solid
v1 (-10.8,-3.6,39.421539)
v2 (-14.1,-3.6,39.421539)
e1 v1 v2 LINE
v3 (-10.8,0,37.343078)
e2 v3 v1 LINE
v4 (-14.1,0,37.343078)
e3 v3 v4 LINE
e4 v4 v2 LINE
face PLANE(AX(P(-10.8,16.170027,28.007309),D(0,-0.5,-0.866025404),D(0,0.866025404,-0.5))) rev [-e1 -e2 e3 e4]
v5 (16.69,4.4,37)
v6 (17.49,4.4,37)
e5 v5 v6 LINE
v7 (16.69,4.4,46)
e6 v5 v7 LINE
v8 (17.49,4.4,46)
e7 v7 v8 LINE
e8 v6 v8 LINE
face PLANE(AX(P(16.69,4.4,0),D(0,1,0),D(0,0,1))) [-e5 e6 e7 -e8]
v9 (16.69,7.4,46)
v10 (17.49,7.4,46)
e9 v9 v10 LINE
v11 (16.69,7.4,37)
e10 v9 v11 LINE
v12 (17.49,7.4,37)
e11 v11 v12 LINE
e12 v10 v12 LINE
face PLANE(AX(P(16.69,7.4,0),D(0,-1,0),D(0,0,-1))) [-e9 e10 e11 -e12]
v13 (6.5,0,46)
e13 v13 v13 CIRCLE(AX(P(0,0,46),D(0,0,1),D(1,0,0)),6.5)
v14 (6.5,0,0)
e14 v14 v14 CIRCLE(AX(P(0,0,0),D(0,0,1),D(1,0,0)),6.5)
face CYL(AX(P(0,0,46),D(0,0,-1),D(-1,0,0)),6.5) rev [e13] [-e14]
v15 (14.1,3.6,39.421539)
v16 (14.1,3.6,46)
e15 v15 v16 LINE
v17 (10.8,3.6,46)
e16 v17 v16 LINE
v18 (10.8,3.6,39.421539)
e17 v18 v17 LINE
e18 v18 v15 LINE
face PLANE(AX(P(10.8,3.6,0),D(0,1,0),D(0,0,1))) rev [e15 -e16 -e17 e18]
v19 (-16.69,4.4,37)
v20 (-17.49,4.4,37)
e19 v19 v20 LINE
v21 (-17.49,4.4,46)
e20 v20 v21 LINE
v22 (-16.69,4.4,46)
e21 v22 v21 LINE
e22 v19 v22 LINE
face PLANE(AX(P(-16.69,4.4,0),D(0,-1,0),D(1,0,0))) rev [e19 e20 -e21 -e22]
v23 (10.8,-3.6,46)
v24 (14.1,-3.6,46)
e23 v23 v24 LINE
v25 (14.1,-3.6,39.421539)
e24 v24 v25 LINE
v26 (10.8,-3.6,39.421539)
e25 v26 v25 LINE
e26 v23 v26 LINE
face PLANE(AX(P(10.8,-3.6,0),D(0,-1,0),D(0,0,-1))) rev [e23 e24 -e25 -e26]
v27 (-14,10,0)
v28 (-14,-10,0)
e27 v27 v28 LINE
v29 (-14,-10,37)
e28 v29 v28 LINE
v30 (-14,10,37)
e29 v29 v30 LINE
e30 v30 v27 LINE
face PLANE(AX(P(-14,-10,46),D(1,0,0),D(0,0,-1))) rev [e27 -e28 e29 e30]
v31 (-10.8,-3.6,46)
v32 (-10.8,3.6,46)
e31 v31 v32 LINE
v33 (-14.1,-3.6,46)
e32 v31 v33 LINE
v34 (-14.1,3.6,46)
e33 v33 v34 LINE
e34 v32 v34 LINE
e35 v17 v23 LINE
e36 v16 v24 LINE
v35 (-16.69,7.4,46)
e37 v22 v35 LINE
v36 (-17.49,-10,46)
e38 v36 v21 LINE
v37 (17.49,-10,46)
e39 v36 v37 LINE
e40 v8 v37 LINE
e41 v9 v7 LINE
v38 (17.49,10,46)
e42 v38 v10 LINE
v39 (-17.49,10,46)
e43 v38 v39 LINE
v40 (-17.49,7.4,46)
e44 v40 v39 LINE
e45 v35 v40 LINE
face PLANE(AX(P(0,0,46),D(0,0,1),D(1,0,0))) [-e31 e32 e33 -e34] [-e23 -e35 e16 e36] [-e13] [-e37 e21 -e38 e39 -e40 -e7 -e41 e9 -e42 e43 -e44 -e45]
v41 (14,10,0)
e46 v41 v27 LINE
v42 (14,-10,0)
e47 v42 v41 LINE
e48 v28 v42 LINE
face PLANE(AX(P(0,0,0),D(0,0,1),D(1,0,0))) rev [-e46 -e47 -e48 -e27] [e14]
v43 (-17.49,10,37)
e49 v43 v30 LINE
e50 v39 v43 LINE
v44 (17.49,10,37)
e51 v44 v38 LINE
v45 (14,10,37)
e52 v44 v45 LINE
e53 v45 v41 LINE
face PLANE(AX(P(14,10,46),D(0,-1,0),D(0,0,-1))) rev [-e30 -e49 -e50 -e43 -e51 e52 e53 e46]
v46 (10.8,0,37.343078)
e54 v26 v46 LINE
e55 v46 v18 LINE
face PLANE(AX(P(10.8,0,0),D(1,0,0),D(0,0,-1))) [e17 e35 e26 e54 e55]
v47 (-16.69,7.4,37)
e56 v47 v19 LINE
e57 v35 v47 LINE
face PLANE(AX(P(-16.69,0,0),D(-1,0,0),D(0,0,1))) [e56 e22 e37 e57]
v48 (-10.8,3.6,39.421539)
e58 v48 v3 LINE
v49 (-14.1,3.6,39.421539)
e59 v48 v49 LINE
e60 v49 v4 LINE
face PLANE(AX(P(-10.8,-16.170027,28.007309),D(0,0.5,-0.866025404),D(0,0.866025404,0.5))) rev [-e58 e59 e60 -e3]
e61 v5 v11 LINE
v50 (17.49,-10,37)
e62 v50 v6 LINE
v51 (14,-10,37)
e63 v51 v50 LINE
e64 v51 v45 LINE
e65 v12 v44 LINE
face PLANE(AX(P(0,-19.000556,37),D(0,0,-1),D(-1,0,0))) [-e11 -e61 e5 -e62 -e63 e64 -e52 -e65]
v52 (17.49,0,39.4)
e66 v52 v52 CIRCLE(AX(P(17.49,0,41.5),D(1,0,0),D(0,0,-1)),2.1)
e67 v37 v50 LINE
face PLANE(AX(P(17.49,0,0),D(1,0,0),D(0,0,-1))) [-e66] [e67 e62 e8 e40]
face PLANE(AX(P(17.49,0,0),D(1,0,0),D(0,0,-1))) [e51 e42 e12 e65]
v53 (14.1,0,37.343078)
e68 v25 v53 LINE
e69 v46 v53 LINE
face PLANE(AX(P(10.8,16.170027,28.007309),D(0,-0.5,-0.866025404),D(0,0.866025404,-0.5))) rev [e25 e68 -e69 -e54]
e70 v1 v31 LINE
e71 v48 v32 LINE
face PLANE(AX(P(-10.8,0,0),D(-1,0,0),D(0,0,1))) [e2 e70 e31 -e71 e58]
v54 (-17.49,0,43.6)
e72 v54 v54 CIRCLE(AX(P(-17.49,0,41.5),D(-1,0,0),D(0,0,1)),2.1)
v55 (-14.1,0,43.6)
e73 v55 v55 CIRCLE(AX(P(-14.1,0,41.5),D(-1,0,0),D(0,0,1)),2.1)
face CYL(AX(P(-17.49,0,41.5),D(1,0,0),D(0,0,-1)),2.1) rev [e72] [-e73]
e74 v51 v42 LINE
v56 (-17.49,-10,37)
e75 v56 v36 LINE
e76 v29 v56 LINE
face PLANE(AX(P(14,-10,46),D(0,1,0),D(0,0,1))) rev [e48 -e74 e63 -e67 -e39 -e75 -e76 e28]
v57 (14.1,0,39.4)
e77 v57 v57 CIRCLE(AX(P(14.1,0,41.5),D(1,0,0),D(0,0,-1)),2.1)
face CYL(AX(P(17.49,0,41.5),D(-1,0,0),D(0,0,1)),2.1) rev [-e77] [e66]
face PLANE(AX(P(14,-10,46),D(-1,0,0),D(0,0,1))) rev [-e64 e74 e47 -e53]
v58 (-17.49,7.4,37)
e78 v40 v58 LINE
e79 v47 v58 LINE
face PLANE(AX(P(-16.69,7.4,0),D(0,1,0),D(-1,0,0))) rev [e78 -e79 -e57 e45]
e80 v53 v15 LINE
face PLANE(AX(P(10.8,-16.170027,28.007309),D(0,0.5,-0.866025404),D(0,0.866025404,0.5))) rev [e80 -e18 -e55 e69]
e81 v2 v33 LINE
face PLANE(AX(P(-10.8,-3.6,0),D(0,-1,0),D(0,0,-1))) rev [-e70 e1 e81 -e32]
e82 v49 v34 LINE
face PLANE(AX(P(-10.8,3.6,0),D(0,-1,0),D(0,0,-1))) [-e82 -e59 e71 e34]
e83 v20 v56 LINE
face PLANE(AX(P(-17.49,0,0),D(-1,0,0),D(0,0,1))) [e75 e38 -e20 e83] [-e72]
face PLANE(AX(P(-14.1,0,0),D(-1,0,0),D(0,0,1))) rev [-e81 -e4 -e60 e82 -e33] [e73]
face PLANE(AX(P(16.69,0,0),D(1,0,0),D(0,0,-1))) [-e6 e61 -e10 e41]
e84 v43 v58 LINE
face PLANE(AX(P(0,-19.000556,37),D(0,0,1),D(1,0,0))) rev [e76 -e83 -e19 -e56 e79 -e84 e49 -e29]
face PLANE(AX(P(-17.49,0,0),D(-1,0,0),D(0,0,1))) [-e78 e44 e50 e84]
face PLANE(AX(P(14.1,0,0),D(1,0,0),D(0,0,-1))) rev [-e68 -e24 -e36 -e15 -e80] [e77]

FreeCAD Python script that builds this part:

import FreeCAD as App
import Part
import Sketcher

V = App.Vector
Q = App.Units.Quantity

doc = App.newDocument("Part")
body = doc.addObject("PartDesign::Body", "Body")

# Sketch on XY plane
sketch1 = body.newObject("Sketcher::SketchObject", "Sketch")
sketch1.AttachmentSupport = (doc.getObject("XY_Plane"), [""])
sketch1.MapMode = "FlatFace"
sketch1.addGeometry([
    Part.LineSegment(V(-14, 10, 0), V(-14, -10, 0)),  # 0
    Part.LineSegment(V(-14, -10, 0), V(14, -10, 0)),  # 1
    Part.LineSegment(V(14, -10, 0), V(14, 10, 0)),  # 2
    Part.LineSegment(V(14, 10, 0), V(-14, 10, 0)),  # 3
    Part.Circle(V(0, 0, 0), V(0, 0, 1), 6),  # 4
], False)
sketch1.addConstraint([
    Sketcher.Constraint("Coincident", 0, 2, 1, 1),
    Sketcher.Constraint("Coincident", 1, 2, 2, 1),
    Sketcher.Constraint("Coincident", 2, 2, 3, 1),
    Sketcher.Constraint("Coincident", 3, 2, 0, 1),
    Sketcher.Constraint("Vertical", 0),
    Sketcher.Constraint("Horizontal", 1),
    Sketcher.Constraint("Vertical", 2),
    Sketcher.Constraint("Horizontal", 3),
    Sketcher.Constraint("Coincident", 4, 3, -1, 1),
    Sketcher.Constraint("Symmetric", 0, 2, 2, 2, -1, 1),
    Sketcher.Constraint("Diameter", 4, 13.0),
    Sketcher.Constraint("DistanceX", 1, 1, 1, 2, 28.0),
    Sketcher.Constraint("DistanceY", 0, 2, 0, 1, 20.0),
])
pad1 = body.newObject("PartDesign::Pad", "Pad")
pad1.Profile = sketch1
pad1.Length = 46

# Sketch on XZ plane
sketch2 = body.newObject("Sketcher::SketchObject", "Sketch001")
sketch2.AttachmentSupport = (doc.getObject("XZ_Plane"), [""])
sketch2.MapMode = "FlatFace"
sketch2.AttachmentOffset = App.Placement(V(0, 0, -10), App.Rotation())
sketch2.addGeometry([
    Part.LineSegment(V(-14.1, 37, 0), V(-14.1, 46, 0)),  # 0
    Part.LineSegment(V(-14.1, 46, 0), V(-14, 46, 0)),  # 1
    Part.LineSegment(V(-14, 46, 0), V(-14, 37, 0)),  # 2
    Part.LineSegment(V(-14, 37, 0), V(-14.1, 37, 0)),  # 3
    Part.LineSegment(V(14, 37, 0), V(14, 46, 0)),  # 4
    Part.LineSegment(V(14, 46, 0), V(14.1, 46, 0)),  # 5
    Part.LineSegment(V(14.1, 46, 0), V(14.1, 37, 0)),  # 6
    Part.LineSegment(V(14.1, 37, 0), V(14, 37, 0)),  # 7
], False)
sketch2.addConstraint([
    Sketcher.Constraint("Coincident", 0, 2, 1, 1),
    Sketcher.Constraint("Coincident", 1, 2, 2, 1),
    Sketcher.Constraint("Coincident", 2, 2, 3, 1),
    Sketcher.Constraint("Coincident", 3, 2, 0, 1),
    Sketcher.Constraint("Coincident", 4, 2, 5, 1),
    Sketcher.Constraint("Coincident", 5, 2, 6, 1),
    Sketcher.Constraint("Coincident", 6, 2, 7, 1),
    Sketcher.Constraint("Coincident", 7, 2, 4, 1),
    Sketcher.Constraint("Vertical", 0),
    Sketcher.Constraint("Horizontal", 1),
    Sketcher.Constraint("Vertical", 2),
    Sketcher.Constraint("Horizontal", 3),
    Sketcher.Constraint("Vertical", 4),
    Sketcher.Constraint("Horizontal", 5),
    Sketcher.Constraint("Vertical", 6),
    Sketcher.Constraint("Horizontal", 7),
    Sketcher.Constraint("Symmetric", 1, 2, 4, 2, -2),
    Sketcher.Constraint("Symmetric", 3, 2, 6, 2, -2),
    Sketcher.Constraint("DistanceY", 0, 1, 0, 2, 9.0),
    Sketcher.Constraint("DistanceX", 1, 1, 1, 2, 0.1),
    Sketcher.Constraint("DistanceY", -1, 1, 0, 2, 46.0),
    Sketcher.Constraint("DistanceX", 1, 2, -1, 1, 14.0),
])
pad2 = body.newObject("PartDesign::Pad", "Pad001")
pad2.Profile = sketch2
pad2.Length = 20

# Sketch on YZ plane
sketch3 = body.newObject("Sketcher::SketchObject", "Sketch002")
sketch3.AttachmentSupport = (doc.getObject("YZ_Plane"), [""])
sketch3.MapMode = "FlatFace"
sketch3.AttachmentOffset = App.Placement(V(0, 0, 14.1), App.Rotation())
sketch3.addGeometry([
    Part.LineSegment(V(-3.6, 39.4, 0), V(0, 37.3, 0)),  # 0
    Part.LineSegment(V(0, 37.3, 0), V(3.6, 39.4, 0)),  # 1
    Part.LineSegment(V(3.6, 39.4, 0), V(3.6, 46, 0)),  # 2
    Part.LineSegment(V(3.6, 46, 0), V(-3.6, 46, 0)),  # 3
    Part.LineSegment(V(-3.6, 46, 0), V(-3.6, 39.4, 0)),  # 4
], False)
sketch3.addConstraint([
    Sketcher.Constraint("Coincident", 0, 2, 1, 1),
    Sketcher.Constraint("Coincident", 1, 2, 2, 1),
    Sketcher.Constraint("Coincident", 2, 2, 3, 1),
    Sketcher.Constraint("Coincident", 3, 2, 4, 1),
    Sketcher.Constraint("Coincident", 4, 2, 0, 1),
    Sketcher.Constraint("Vertical", 2),
    Sketcher.Constraint("Horizontal", 3),
    Sketcher.Constraint("Vertical", 4),
    Sketcher.Constraint("Symmetric", 1, 2, 4, 2, -2),
    Sketcher.Constraint("PointOnObject", 0, 2, -2),
    Sketcher.Constraint("Angle", 0, Q("-30 deg")),
    Sketcher.Constraint("DistanceX", 3, 2, 3, 1, 7.2),
    Sketcher.Constraint("DistanceY", -1, 1, 2, 2, 46.0),
    Sketcher.Constraint("DistanceY", 2, 1, 2, 2, 6.578461),
])
pocket1 = body.newObject("PartDesign::Pocket", "Pocket")
pocket1.Profile = sketch3
pocket1.Length = 3.3

# Sketch on YZ plane
sketch4 = body.newObject("Sketcher::SketchObject", "Sketch003")
sketch4.AttachmentSupport = (doc.getObject("YZ_Plane"), [""])
sketch4.MapMode = "FlatFace"
sketch4.AttachmentOffset = App.Placement(V(0, 0, -14.1), App.Rotation())
sketch4.addGeometry([
    Part.LineSegment(V(3.6, 39.4, 0), V(0, 37.3, 0)),  # 0
    Part.LineSegment(V(0, 37.3, 0), V(-3.6, 39.4, 0)),  # 1
    Part.LineSegment(V(-3.6, 39.4, 0), V(-3.6, 46, 0)),  # 2
    Part.LineSegment(V(-3.6, 46, 0), V(3.6, 46, 0)),  # 3
    Part.LineSegment(V(3.6, 46, 0), V(3.6, 39.4, 0)),  # 4
], False)
sketch4.addConstraint([
    Sketcher.Constraint("Coincident", 0, 2, 1, 1),
    Sketcher.Constraint("Coincident", 1, 2, 2, 1),
    Sketcher.Constraint("Coincident", 2, 2, 3, 1),
    Sketcher.Constraint("Coincident", 3, 2, 4, 1),
    Sketcher.Constraint("Coincident", 4, 2, 0, 1),
    Sketcher.Constraint("Vertical", 2),
    Sketcher.Constraint("Horizontal", 3),
    Sketcher.Constraint("Vertical", 4),
    Sketcher.Constraint("Symmetric", 1, 2, 4, 2, -2),
    Sketcher.Constraint("PointOnObject", 0, 2, -2),
    Sketcher.Constraint("Angle", 0, Q("-150 deg")),
    Sketcher.Constraint("DistanceX", 3, 1, 3, 2, 7.2),
    Sketcher.Constraint("DistanceY", -1, 1, 2, 2, 46.0),
    Sketcher.Constraint("DistanceY", 2, 1, 2, 2, 6.578461),
])
pocket2 = body.newObject("PartDesign::Pocket", "Pocket001")
pocket2.Profile = sketch4
pocket2.Length = 3.3
pocket2.Reversed = True

# Sketch on YZ plane
sketch5 = body.newObject("Sketcher::SketchObject", "Sketch004")
sketch5.AttachmentSupport = (doc.getObject("YZ_Plane"), [""])
sketch5.MapMode = "FlatFace"
sketch5.AttachmentOffset = App.Placement(V(0, 0, -14.1), App.Rotation())
sketch5.addGeometry([
    Part.LineSegment(V(10, 37, 0), V(-10, 37, 0)),  # 0
    Part.LineSegment(V(-10, 37, 0), V(-10, 46, 0)),  # 1
    Part.LineSegment(V(-10, 46, 0), V(10, 46, 0)),  # 2
    Part.LineSegment(V(10, 46, 0), V(10, 37, 0)),  # 3
    Part.Circle(V(0, 41.5, 0), V(0, 0, 1), 2.1),  # 4
], False)
sketch5.addConstraint([
    Sketcher.Constraint("Coincident", 0, 2, 1, 1),
    Sketcher.Constraint("Coincident", 1, 2, 2, 1),
    Sketcher.Constraint("Coincident", 2, 2, 3, 1),
    Sketcher.Constraint("Coincident", 3, 2, 0, 1),
    Sketcher.Constraint("Horizontal", 0),
    Sketcher.Constraint("Vertical", 1),
    Sketcher.Constraint("Horizontal", 2),
    Sketcher.Constraint("Vertical", 3),
    Sketcher.Constraint("PointOnObject", 4, 3, -2),
    Sketcher.Constraint("Diameter", 4, 4.2),
    Sketcher.Constraint("DistanceX", 0, 2, 0, 1, 20.0),
    Sketcher.Constraint("DistanceY", 1, 1, 1, 2, 9.0),
    Sketcher.Constraint("DistanceX", 0, 2, -1, 1, 10.0),
    Sketcher.Constraint("DistanceY", -1, 1, 0, 2, 37.0),
    Sketcher.Constraint("DistanceY", -1, 1, 4, 3, 41.5),
])
pad3 = body.newObject("PartDesign::Pad", "Pad002")
pad3.Profile = sketch5
pad3.Length = 3.39
pad3.Reversed = True

# Sketch on YZ plane
sketch6 = body.newObject("Sketcher::SketchObject", "Sketch005")
sketch6.AttachmentSupport = (doc.getObject("YZ_Plane"), [""])
sketch6.MapMode = "FlatFace"
sketch6.AttachmentOffset = App.Placement(V(0, 0, 17.49), App.Rotation())
sketch6.addGeometry([
    Part.LineSegment(V(10, 46, 0), V(-10, 46, 0)),  # 0
    Part.LineSegment(V(-10, 46, 0), V(-10, 37, 0)),  # 1
    Part.LineSegment(V(-10, 37, 0), V(10, 37, 0)),  # 2
    Part.LineSegment(V(10, 37, 0), V(10, 46, 0)),  # 3
    Part.Circle(V(0, 41.5, 0), V(0, 0, 1), 2.1),  # 4
], False)
sketch6.addConstraint([
    Sketcher.Constraint("Coincident", 0, 2, 1, 1),
    Sketcher.Constraint("Coincident", 1, 2, 2, 1),
    Sketcher.Constraint("Coincident", 2, 2, 3, 1),
    Sketcher.Constraint("Coincident", 3, 2, 0, 1),
    Sketcher.Constraint("Horizontal", 0),
    Sketcher.Constraint("Vertical", 1),
    Sketcher.Constraint("Horizontal", 2),
    Sketcher.Constraint("Vertical", 3),
    Sketcher.Constraint("PointOnObject", 4, 3, -2),
    Sketcher.Constraint("Diameter", 4, 4.2),
    Sketcher.Constraint("DistanceX", 0, 2, 0, 1, 20.0),
    Sketcher.Constraint("DistanceY", 1, 2, 1, 1, 9.0),
    Sketcher.Constraint("DistanceX", 0, 2, -1, 1, 10.0),
    Sketcher.Constraint("DistanceY", -1, 1, 0, 2, 46.0),
    Sketcher.Constraint("DistanceY", -1, 1, 4, 3, 41.5),
])
pad4 = body.newObject("PartDesign::Pad", "Pad003")
pad4.Profile = sketch6
pad4.Length = 3.39
pad4.Reversed = True

# Sketch on YZ plane
sketch7 = body.newObject("Sketcher::SketchObject", "Sketch006")
sketch7.AttachmentSupport = (doc.getObject("YZ_Plane"), [""])
sketch7.MapMode = "FlatFace"
sketch7.AttachmentOffset = App.Placement(V(0, 0, -17.49), App.Rotation())
sketch7.addGeometry([
    Part.LineSegment(V(7.4, 37, 0), V(4.4, 37, 0)),
    Part.LineSegment(V(4.4, 37, 0), V(4.4, 46.4, 0)),
    Part.LineSegment(V(4.4, 46.4, 0), V(7.4, 46.4, 0)),
    Part.LineSegment(V(7.4, 46.4, 0), V(7.4, 37, 0)),
], False)
sketch7.addConstraint([
    Sketcher.Constraint("Coincident", 0, 2, 1, 1),
    Sketcher.Constraint("Coincident", 1, 2, 2, 1),
    Sketcher.Constraint("Coincident", 2, 2, 3, 1),
    Sketcher.Constraint("Coincident", 3, 2, 0, 1),
    Sketcher.Constraint("Horizontal", 0),
    Sketcher.Constraint("Vertical", 1),
    Sketcher.Constraint("Horizontal", 2),
    Sketcher.Constraint("Vertical", 3),
    Sketcher.Constraint("DistanceX", 0, 2, 0, 1, 3.0),
    Sketcher.Constraint("DistanceY", -1, 1, 0, 2, 37.0),
    Sketcher.Constraint("DistanceX", -1, 1, 0, 2, 4.4),
    Sketcher.Constraint("DistanceY", 1, 1, 1, 2, 9.448345),
])
pocket3 = body.newObject("PartDesign::Pocket", "Pocket002")
pocket3.Profile = sketch7
pocket3.Length = 0.8
pocket3.Reversed = True

# Sketch on YZ plane
sketch8 = body.newObject("Sketcher::SketchObject", "Sketch007")
sketch8.AttachmentSupport = (doc.getObject("YZ_Plane"), [""])
sketch8.MapMode = "FlatFace"
sketch8.AttachmentOffset = App.Placement(V(0, 0, 17.49), App.Rotation())
sketch8.addGeometry([
    Part.LineSegment(V(7.4, 46, 0), V(4.4, 46, 0)),
    Part.LineSegment(V(4.4, 46, 0), V(4.4, 37, 0)),
    Part.LineSegment(V(4.4, 37, 0), V(7.4, 37, 0)),
    Part.LineSegment(V(7.4, 37, 0), V(7.4, 46, 0)),
], False)
sketch8.addConstraint([
    Sketcher.Constraint("Coincident", 0, 2, 1, 1),
    Sketcher.Constraint("Coincident", 1, 2, 2, 1),
    Sketcher.Constraint("Coincident", 2, 2, 3, 1),
    Sketcher.Constraint("Coincident", 3, 2, 0, 1),
    Sketcher.Constraint("Horizontal", 0),
    Sketcher.Constraint("Vertical", 1),
    Sketcher.Constraint("Horizontal", 2),
    Sketcher.Constraint("Vertical", 3),
    Sketcher.Constraint("DistanceX", 0, 2, 0, 1, 3.0),
    Sketcher.Constraint("DistanceY", 1, 2, 1, 1, 9.0),
    Sketcher.Constraint("DistanceY", -1, 1, 0, 2, 46.0),
    Sketcher.Constraint("DistanceX", -1, 1, 0, 2, 4.4),
])
pocket4 = body.newObject("PartDesign::Pocket", "Pocket003")
pocket4.Profile = sketch8
pocket4.Length = 0.8

doc.recompute()
